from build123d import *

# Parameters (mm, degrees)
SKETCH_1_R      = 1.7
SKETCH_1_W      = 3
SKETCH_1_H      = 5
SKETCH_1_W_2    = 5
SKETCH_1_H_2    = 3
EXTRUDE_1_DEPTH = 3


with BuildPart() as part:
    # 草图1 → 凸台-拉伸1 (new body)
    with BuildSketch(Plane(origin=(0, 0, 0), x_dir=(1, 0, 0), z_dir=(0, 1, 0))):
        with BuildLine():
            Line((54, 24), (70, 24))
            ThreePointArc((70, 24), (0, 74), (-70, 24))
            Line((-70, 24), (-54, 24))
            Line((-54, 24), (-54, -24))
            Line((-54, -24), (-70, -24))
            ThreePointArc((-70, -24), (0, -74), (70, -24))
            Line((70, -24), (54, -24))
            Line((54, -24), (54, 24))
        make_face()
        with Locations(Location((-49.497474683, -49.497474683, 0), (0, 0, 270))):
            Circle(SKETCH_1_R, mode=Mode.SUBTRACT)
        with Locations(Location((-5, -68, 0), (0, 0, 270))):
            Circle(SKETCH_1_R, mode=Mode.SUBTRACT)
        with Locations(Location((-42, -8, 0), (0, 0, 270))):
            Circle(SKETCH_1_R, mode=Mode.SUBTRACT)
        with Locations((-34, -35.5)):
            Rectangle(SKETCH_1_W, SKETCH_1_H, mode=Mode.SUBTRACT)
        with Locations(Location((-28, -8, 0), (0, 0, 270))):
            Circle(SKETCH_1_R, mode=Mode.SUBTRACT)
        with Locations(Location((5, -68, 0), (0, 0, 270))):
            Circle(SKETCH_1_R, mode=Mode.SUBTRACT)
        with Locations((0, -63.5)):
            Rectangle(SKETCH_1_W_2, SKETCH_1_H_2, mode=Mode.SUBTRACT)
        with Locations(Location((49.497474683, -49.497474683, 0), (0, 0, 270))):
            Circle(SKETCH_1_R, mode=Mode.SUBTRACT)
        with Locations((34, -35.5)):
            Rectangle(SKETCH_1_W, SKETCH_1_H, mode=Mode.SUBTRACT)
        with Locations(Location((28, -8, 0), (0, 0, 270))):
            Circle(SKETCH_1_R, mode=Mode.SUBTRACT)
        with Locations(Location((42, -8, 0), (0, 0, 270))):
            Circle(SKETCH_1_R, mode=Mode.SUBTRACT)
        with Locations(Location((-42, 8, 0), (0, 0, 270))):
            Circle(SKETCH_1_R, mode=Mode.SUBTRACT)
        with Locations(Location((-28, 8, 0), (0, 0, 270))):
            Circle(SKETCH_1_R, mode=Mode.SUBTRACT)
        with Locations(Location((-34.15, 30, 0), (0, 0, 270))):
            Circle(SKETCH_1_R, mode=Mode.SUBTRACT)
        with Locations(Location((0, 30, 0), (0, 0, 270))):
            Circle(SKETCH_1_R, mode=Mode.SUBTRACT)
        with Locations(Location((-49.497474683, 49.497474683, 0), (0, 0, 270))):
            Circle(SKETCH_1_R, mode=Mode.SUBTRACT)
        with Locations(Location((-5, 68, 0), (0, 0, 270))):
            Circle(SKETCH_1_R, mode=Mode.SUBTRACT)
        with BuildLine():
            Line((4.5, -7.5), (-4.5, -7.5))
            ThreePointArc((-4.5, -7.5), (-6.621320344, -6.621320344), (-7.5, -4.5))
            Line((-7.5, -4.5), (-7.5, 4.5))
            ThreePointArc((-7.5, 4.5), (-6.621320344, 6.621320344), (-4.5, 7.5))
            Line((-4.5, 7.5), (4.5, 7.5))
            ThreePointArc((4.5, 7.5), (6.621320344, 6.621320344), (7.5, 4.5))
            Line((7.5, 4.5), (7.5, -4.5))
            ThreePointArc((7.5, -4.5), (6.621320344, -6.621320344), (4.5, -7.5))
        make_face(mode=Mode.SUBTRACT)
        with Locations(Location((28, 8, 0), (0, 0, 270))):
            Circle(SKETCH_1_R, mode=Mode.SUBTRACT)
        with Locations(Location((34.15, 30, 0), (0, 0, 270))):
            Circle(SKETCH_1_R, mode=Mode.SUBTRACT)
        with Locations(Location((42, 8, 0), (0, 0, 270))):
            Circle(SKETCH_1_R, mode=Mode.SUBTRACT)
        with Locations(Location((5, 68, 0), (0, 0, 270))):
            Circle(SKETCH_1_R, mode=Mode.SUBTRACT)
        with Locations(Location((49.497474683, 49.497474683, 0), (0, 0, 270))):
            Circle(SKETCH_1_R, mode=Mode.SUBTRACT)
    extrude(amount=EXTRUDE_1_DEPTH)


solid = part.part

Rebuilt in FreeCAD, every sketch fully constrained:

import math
import FreeCAD as App
import Part
import Sketcher


def add_polygon(sketch, points):
    """Adds a closed chain of lines whose ends are joined by coincident constraints."""
    first, n = sketch.GeometryCount, len(points)
    for a, b in zip(points, points[1:] + points[:1]):
        sketch.addGeometry(Part.LineSegment(App.Vector(*a, 0), App.Vector(*b, 0)), False)
    for i in range(n):
        sketch.addConstraint(Sketcher.Constraint("Coincident", first + i, 2, first + (i + 1) % n, 1))

doc = App.newDocument("Part")
body = doc.addObject("PartDesign::Body", "Body")

sketch1 = body.newObject("Sketcher::SketchObject", "Sketch")
sketch1.AttachmentSupport = (doc.getObject("XZ_Plane"), [""])
sketch1.MapMode = "FlatFace"
sketch1.addGeometry(Part.LineSegment(App.Vector(54, -24, 0), App.Vector(70, -24, 0)), False)
sketch1.addGeometry(Part.ArcOfCircle(Part.Circle(App.Vector(0, 0, 0), App.Vector(0, 0, 1), 74), math.radians(-161), math.radians(-19)), False)
sketch1.addGeometry(Part.LineSegment(App.Vector(-70, -24, 0), App.Vector(-54, -24, 0)), False)
sketch1.addGeometry(Part.LineSegment(App.Vector(-54, -24, 0), App.Vector(-54, 24, 0)), False)
sketch1.addGeometry(Part.LineSegment(App.Vector(-54, 24, 0), App.Vector(-70, 24, 0)), False)
sketch1.addGeometry(Part.ArcOfCircle(Part.Circle(App.Vector(0, 0, 0), App.Vector(0, 0, 1), 74), math.radians(19), math.radians(161)), False)
sketch1.addGeometry(Part.LineSegment(App.Vector(70, 24, 0), App.Vector(54, 24, 0)), False)
sketch1.addGeometry(Part.LineSegment(App.Vector(54, 24, 0), App.Vector(54, -24, 0)), False)
sketch1.addGeometry(Part.Circle(App.Vector(-49.5, 49.5, 0), App.Vector(0, 0, 1), 1.7), False)
add_polygon(sketch1, [(-32.5, 38), (-35.5, 38), (-35.5, 33), (-32.5, 33)])
sketch1.addGeometry(Part.Circle(App.Vector(-5, 68, 0), App.Vector(0, 0, 1), 1.7), False)
sketch1.addGeometry(Part.Circle(App.Vector(-42, 8, 0), App.Vector(0, 0, 1), 1.7), False)
sketch1.addGeometry(Part.Circle(App.Vector(-28, 8, 0), App.Vector(0, 0, 1), 1.7), False)
sketch1.addGeometry(Part.Circle(App.Vector(5, 68, 0), App.Vector(0, 0, 1), 1.7), False)
add_polygon(sketch1, [(2.5, 65), (-2.5, 65), (-2.5, 62), (2.5, 62)])
add_polygon(sketch1, [(35.5, 38), (32.5, 38), (32.5, 33), (35.5, 33)])
sketch1.addGeometry(Part.Circle(App.Vector(49.5, 49.5, 0), App.Vector(0, 0, 1), 1.7), False)
sketch1.addGeometry(Part.Circle(App.Vector(28, 8, 0), App.Vector(0, 0, 1), 1.7), False)
sketch1.addGeometry(Part.Circle(App.Vector(42, 8, 0), App.Vector(0, 0, 1), 1.7), False)
sketch1.addGeometry(Part.Circle(App.Vector(-42, -8, 0), App.Vector(0, 0, 1), 1.7), False)
sketch1.addGeometry(Part.Circle(App.Vector(-28, -8, 0), App.Vector(0, 0, 1), 1.7), False)
sketch1.addGeometry(Part.Circle(App.Vector(-34.1, -30, 0), App.Vector(0, 0, 1), 1.7), False)
sketch1.addGeometry(Part.Circle(App.Vector(-49.5, -49.5, 0), App.Vector(0, 0, 1), 1.7), False)
sketch1.addGeometry(Part.Circle(App.Vector(-5, -68, 0), App.Vector(0, 0, 1), 1.7), False)
sketch1.addGeometry(Part.ArcOfCircle(Part.Circle(App.Vector(4.5, 4.5, 0), App.Vector(0, 0, 1), 3), math.radians(0), math.radians(90)), False)
sketch1.addGeometry(Part.LineSegment(App.Vector(4.5, 7.5, 0), App.Vector(-4.5, 7.5, 0)), False)
sketch1.addGeometry(Part.ArcOfCircle(Part.Circle(App.Vector(-4.5, 4.5, 0), App.Vector(0, 0, 1), 3), math.radians(90), math.radians(180)), False)
sketch1.addGeometry(Part.LineSegment(App.Vector(-7.5, 4.5, 0), App.Vector(-7.5, -4.5, 0)), False)
sketch1.addGeometry(Part.ArcOfCircle(Part.Circle(App.Vector(-4.5, -4.5, 0), App.Vector(0, 0, 1), 3), math.radians(180), math.radians(270)), False)
sketch1.addGeometry(Part.LineSegment(App.Vector(-4.5, -7.5, 0), App.Vector(4.5, -7.5, 0)), False)
sketch1.addGeometry(Part.ArcOfCircle(Part.Circle(App.Vector(4.5, -4.5, 0), App.Vector(0, 0, 1), 3), math.radians(-90), math.radians(0)), False)
sketch1.addGeometry(Part.LineSegment(App.Vector(7.5, -4.5, 0), App.Vector(7.5, 4.5, 0)), False)
sketch1.addGeometry(Part.Circle(App.Vector(0, -30, 0), App.Vector(0, 0, 1), 1.7), False)
sketch1.addGeometry(Part.Circle(App.Vector(28, -8, 0), App.Vector(0, 0, 1), 1.7), False)
sketch1.addGeometry(Part.Circle(App.Vector(42, -8, 0), App.Vector(0, 0, 1), 1.7), False)
sketch1.addGeometry(Part.Circle(App.Vector(34.1, -30, 0), App.Vector(0, 0, 1), 1.7), False)
sketch1.addGeometry(Part.Circle(App.Vector(5, -68, 0), App.Vector(0, 0, 1), 1.7), False)
sketch1.addGeometry(Part.Circle(App.Vector(49.5, -49.5, 0), App.Vector(0, 0, 1), 1.7), False)
sketch1.addConstraint(Sketcher.Constraint("Coincident", 0, 2, 1, 2))
sketch1.addConstraint(Sketcher.Constraint("Coincident", 1, 1, 2, 1))
sketch1.addConstraint(Sketcher.Constraint("Coincident", 2, 2, 3, 1))
sketch1.addConstraint(Sketcher.Constraint("Coincident", 3, 2, 4, 1))
sketch1.addConstraint(Sketcher.Constraint("Coincident", 4, 2, 5, 2))
sketch1.addConstraint(Sketcher.Constraint("Coincident", 5, 1, 6, 1))
sketch1.addConstraint(Sketcher.Constraint("Coincident", 6, 2, 7, 1))
sketch1.addConstraint(Sketcher.Constraint("Coincident", 7, 2, 0, 1))
sketch1.addConstraint(Sketcher.Constraint("Tangent", 33, 2, 34, 1))
sketch1.addConstraint(Sketcher.Constraint("Tangent", 34, 2, 35, 1))
sketch1.addConstraint(Sketcher.Constraint("Tangent", 35, 2, 36, 1))
sketch1.addConstraint(Sketcher.Constraint("Tangent", 36, 2, 37, 1))
sketch1.addConstraint(Sketcher.Constraint("Tangent", 37, 2, 38, 1))
sketch1.addConstraint(Sketcher.Constraint("Tangent", 38, 2, 39, 1))
sketch1.addConstraint(Sketcher.Constraint("Tangent", 39, 2, 40, 1))
sketch1.addConstraint(Sketcher.Constraint("Tangent", 40, 2, 33, 1))
sketch1.addConstraint(Sketcher.Constraint("Horizontal", 0))
sketch1.addConstraint(Sketcher.Constraint("Horizontal", 2))
sketch1.addConstraint(Sketcher.Constraint("Vertical", 3))
sketch1.addConstraint(Sketcher.Constraint("Horizontal", 4))
sketch1.addConstraint(Sketcher.Constraint("Horizontal", 6))
sketch1.addConstraint(Sketcher.Constraint("Vertical", 7))
sketch1.addConstraint(Sketcher.Constraint("Horizontal", 9))
sketch1.addConstraint(Sketcher.Constraint("Vertical", 10))
sketch1.addConstraint(Sketcher.Constraint("Horizontal", 11))
sketch1.addConstraint(Sketcher.Constraint("Vertical", 12))
sketch1.addConstraint(Sketcher.Constraint("Horizontal", 17))
sketch1.addConstraint(Sketcher.Constraint("Vertical", 18))
sketch1.addConstraint(Sketcher.Constraint("Horizontal", 19))
sketch1.addConstraint(Sketcher.Constraint("Vertical", 20))
sketch1.addConstraint(Sketcher.Constraint("Horizontal", 21))
sketch1.addConstraint(Sketcher.Constraint("Vertical", 22))
sketch1.addConstraint(Sketcher.Constraint("Horizontal", 23))
sketch1.addConstraint(Sketcher.Constraint("Vertical", 24))
sketch1.addConstraint(Sketcher.Constraint("Horizontal", 34))
sketch1.addConstraint(Sketcher.Constraint("Vertical", 36))
sketch1.addConstraint(Sketcher.Constraint("Horizontal", 38))
sketch1.addConstraint(Sketcher.Constraint("Vertical", 40))
sketch1.addConstraint(Sketcher.Constraint("Coincident", 1, 3, -1, 1))
sketch1.addConstraint(Sketcher.Constraint("Coincident", 5, 3, -1, 1))
sketch1.addConstraint(Sketcher.Constraint("Equal", 1, 5))
sketch1.addConstraint(Sketcher.Constraint("Equal", 8, 13))
sketch1.addConstraint(Sketcher.Constraint("Equal", 13, 14))
sketch1.addConstraint(Sketcher.Constraint("Equal", 14, 15))
sketch1.addConstraint(Sketcher.Constraint("Equal", 15, 16))
sketch1.addConstraint(Sketcher.Constraint("Equal", 16, 25))
sketch1.addConstraint(Sketcher.Constraint("Equal", 25, 26))
sketch1.addConstraint(Sketcher.Constraint("Equal", 26, 27))
sketch1.addConstraint(Sketcher.Constraint("Equal", 27, 28))
sketch1.addConstraint(Sketcher.Constraint("Equal", 28, 29))
sketch1.addConstraint(Sketcher.Constraint("Equal", 29, 30))
sketch1.addConstraint(Sketcher.Constraint("Equal", 30, 31))
sketch1.addConstraint(Sketcher.Constraint("Equal", 31, 32))
sketch1.addConstraint(Sketcher.Constraint("Equal", 33, 35))
sketch1.addConstraint(Sketcher.Constraint("Equal", 35, 37))
sketch1.addConstraint(Sketcher.Constraint("Equal", 37, 39))
sketch1.addConstraint(Sketcher.Constraint("Equal", 32, 41))
sketch1.addConstraint(Sketcher.Constraint("Equal", 41, 42))
sketch1.addConstraint(Sketcher.Constraint("Equal", 42, 43))
sketch1.addConstraint(Sketcher.Constraint("Equal", 43, 44))
sketch1.addConstraint(Sketcher.Constraint("Equal", 44, 45))
sketch1.addConstraint(Sketcher.Constraint("Equal", 45, 46))
sketch1.addConstraint(Sketcher.Constraint("Symmetric", 27, 3, 28, 3, -1, 1))
sketch1.addConstraint(Sketcher.Constraint("Symmetric", 26, 3, 29, 3, -1, 1))
sketch1.addConstraint(Sketcher.Constraint("Symmetric", 25, 3, 31, 3, -1, 1))
sketch1.addConstraint(Sketcher.Constraint("Symmetric", 16, 3, 32, 3, -1, 1))
sketch1.addConstraint(Sketcher.Constraint("Symmetric", 33, 3, 37, 3, -1, 1))
sketch1.addConstraint(Sketcher.Constraint("Symmetric", 15, 3, 42, 3, -1, 1))
sketch1.addConstraint(Sketcher.Constraint("Symmetric", 14, 3, 43, 3, -1, 1))
sketch1.addConstraint(Sketcher.Constraint("Symmetric", 13, 3, 45, 3, -1, 1))
sketch1.addConstraint(Sketcher.Constraint("Symmetric", 8, 3, 46, 3, -1, 1))
sketch1.addConstraint(Sketcher.Constraint("Symmetric", 2, 2, 6, 2, -1, 1))
sketch1.addConstraint(Sketcher.Constraint("Symmetric", 13, 3, 16, 3, -2))
sketch1.addConstraint(Sketcher.Constraint("Symmetric", 8, 3, 25, 3, -2))
sketch1.addConstraint(Sketcher.Constraint("Symmetric", 15, 3, 26, 3, -2))
sketch1.addConstraint(Sketcher.Constraint("Symmetric", 14, 3, 27, 3, -2))
sketch1.addConstraint(Sketcher.Constraint("Symmetric", 30, 3, 44, 3, -2))
sketch1.addConstraint(Sketcher.Constraint("Symmetric", 12, 2, 21, 2, -2))
sketch1.addConstraint(Sketcher.Constraint("Symmetric", 10, 2, 23, 2, -2))
sketch1.addConstraint(Sketcher.Constraint("PointOnObject", 41, 3, -2))
sketch1.addConstraint(Sketcher.Constraint("Horizontal", 14, 3, 15, 3))
sketch1.addConstraint(Sketcher.Constraint("Horizontal", 30, 3, 41, 3))
sketch1.addConstraint(Sketcher.Constraint("Horizontal", 0, 2, 1, 1))
sketch1.addConstraint(Sketcher.Constraint("Horizontal", 4, 2, 5, 1))
sketch1.addConstraint(Sketcher.Constraint("Equal", 19, 10))
sketch1.addConstraint(Sketcher.Constraint("Equal", 23, 18))
sketch1.addConstraint(Sketcher.Constraint("Equal", 38, 36))
sketch1.addConstraint(Sketcher.Constraint("Radius", 1, 74.0))
sketch1.addConstraint(Sketcher.Constraint("Radius", 33, 3.0))
sketch1.addConstraint(Sketcher.Constraint("Diameter", 8, 3.4))
sketch1.addConstraint(Sketcher.Constraint("DistanceX", 0, 1, 0, 2, 16.0))
sketch1.addConstraint(Sketcher.Constraint("DistanceX", 9, 2, 9, 1, 3.0))
sketch1.addConstraint(Sketcher.Constraint("DistanceX", 17, 2, 17, 1, 5.0))
sketch1.addConstraint(Sketcher.Constraint("DistanceX", 34, 2, 34, 1, 9.0))
sketch1.addConstraint(Sketcher.Constraint("DistanceY", 3, 1, 3, 2, 48.0))
sketch1.addConstraint(Sketcher.Constraint("DistanceX", 13, 3, -1, 1, 5.0))
sketch1.addConstraint(Sketcher.Constraint("DistanceY", -1, 1, 13, 3, 68.0))
sketch1.addConstraint(Sketcher.Constraint("DistanceX", 14, 3, -1, 1, 42.0))
sketch1.addConstraint(Sketcher.Constraint("DistanceY", -1, 1, 14, 3, 8.0))
sketch1.addConstraint(Sketcher.Constraint("DistanceX", 15, 3, -1, 1, 28.0))
sketch1.addConstraint(Sketcher.Constraint("DistanceY", 30, 3, -1, 1, 30.0))
sketch1.addConstraint(Sketcher.Constraint("DistanceY", -1, 1, 9, 2, 38.0))
sketch1.addConstraint(Sketcher.Constraint("DistanceY", -1, 1, 17, 2, 65.0))
sketch1.addConstraint(Sketcher.Constraint("DistanceX", 12, 2, 17, 2, 30.0))
sketch1.addConstraint(Sketcher.Constraint("DistanceX", 19, 2, 21, 2, 30.0))
sketch1.addConstraint(Sketcher.Constraint("DistanceX", 30, 3, -1, 1, 34.15))
sketch1.addConstraint(Sketcher.Constraint("DistanceX", 8, 3, -1, 1, 49.497475))
sketch1.addConstraint(Sketcher.Constraint("DistanceY", -1, 1, 8, 3, 49.497475))
pad1 = body.newObject("PartDesign::Pad", "Pad")
pad1.Profile = sketch1
pad1.Length = 3
pad1.Reversed = True

doc.recompute()
